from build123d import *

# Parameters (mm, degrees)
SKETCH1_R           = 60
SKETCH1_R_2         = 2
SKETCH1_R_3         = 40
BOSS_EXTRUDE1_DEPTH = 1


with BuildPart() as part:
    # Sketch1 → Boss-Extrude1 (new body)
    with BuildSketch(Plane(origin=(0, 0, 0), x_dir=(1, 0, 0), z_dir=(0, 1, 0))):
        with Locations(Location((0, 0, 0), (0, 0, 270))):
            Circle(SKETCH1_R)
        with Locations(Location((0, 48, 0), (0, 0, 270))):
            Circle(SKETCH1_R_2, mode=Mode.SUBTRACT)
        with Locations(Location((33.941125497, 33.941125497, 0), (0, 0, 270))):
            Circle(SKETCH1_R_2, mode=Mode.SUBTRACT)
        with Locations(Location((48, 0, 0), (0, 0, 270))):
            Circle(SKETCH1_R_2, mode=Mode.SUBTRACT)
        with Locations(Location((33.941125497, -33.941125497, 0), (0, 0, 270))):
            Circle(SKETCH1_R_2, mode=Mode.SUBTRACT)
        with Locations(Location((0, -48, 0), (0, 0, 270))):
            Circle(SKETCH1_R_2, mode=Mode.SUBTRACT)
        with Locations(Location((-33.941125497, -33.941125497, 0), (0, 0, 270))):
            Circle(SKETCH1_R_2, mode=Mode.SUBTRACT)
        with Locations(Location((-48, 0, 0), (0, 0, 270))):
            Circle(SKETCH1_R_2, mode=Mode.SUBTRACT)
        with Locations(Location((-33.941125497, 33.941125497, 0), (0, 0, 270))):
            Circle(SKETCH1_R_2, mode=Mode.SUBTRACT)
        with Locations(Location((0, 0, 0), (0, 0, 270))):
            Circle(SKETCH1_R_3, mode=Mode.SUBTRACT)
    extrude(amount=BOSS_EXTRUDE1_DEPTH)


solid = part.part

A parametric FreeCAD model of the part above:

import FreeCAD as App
import Part
import Sketcher

V = App.Vector
Q = App.Units.Quantity

doc = App.newDocument("Part")
params = doc.addObject("Spreadsheet::Sheet", "Params")
for row, (alias, value) in enumerate([
    ("sketch1_diameter", "120 mm"),
    ("sketch1_diameter2", "4 mm"),
    ("sketch1_diameter3", "80 mm"),
    ("pad1_length", "1 mm"),
], start=1):
    params.set(f"A{row}", alias)
    params.set(f"B{row}", "=" + value)
    params.setAlias(f"B{row}", alias)

body = doc.addObject("PartDesign::Body", "Body")

sketch1 = body.newObject("Sketcher::SketchObject", "Sketch")
sketch1.AttachmentSupport = (doc.getObject("XZ_Plane"), [""])
sketch1.MapMode = "FlatFace"
sketch1.addGeometry(Part.Circle(V(0, 0, 0), V(0, 0, 1), 60), False)
sketch1.addGeometry(Part.Circle(V(-33.9, -33.9, 0), V(0, 0, 1), 2), False)
sketch1.addGeometry(Part.Circle(V(0, -48, 0), V(0, 0, 1), 2), False)
sketch1.addGeometry(Part.Circle(V(-48, 0, 0), V(0, 0, 1), 2), False)
sketch1.addGeometry(Part.Circle(V(-33.9, 33.9, 0), V(0, 0, 1), 2), False)
sketch1.addGeometry(Part.Circle(V(33.9, -33.9, 0), V(0, 0, 1), 2), False)
sketch1.addGeometry(Part.Circle(V(48, 0, 0), V(0, 0, 1), 2), False)
sketch1.addGeometry(Part.Circle(V(0, 0, 0), V(0, 0, 1), 40), False)
sketch1.addGeometry(Part.Circle(V(0, 48, 0), V(0, 0, 1), 2), False)
sketch1.addGeometry(Part.Circle(V(33.9, 33.9, 0), V(0, 0, 1), 2), False)
sketch1.addConstraint(Sketcher.Constraint("Coincident", 0, 3, -1, 1))
sketch1.addConstraint(Sketcher.Constraint("Coincident", 7, 3, -1, 1))
sketch1.addConstraint(Sketcher.Constraint("Equal", 1, 2))
sketch1.addConstraint(Sketcher.Constraint("Equal", 2, 3))
sketch1.addConstraint(Sketcher.Constraint("Equal", 3, 4))
sketch1.addConstraint(Sketcher.Constraint("Equal", 4, 5))
sketch1.addConstraint(Sketcher.Constraint("Equal", 5, 6))
sketch1.addConstraint(Sketcher.Constraint("Equal", 6, 8))
sketch1.addConstraint(Sketcher.Constraint("Equal", 8, 9))
sketch1.addConstraint(Sketcher.Constraint("Symmetric", 4, 3, 5, 3, -1, 1))
sketch1.addConstraint(Sketcher.Constraint("Symmetric", 3, 3, 6, 3, -1, 1))
sketch1.addConstraint(Sketcher.Constraint("Symmetric", 2, 3, 8, 3, -1, 1))
sketch1.addConstraint(Sketcher.Constraint("Symmetric", 1, 3, 9, 3, -1, 1))
sketch1.addConstraint(Sketcher.Constraint("Symmetric", 1, 3, 5, 3, -2))
sketch1.addConstraint(Sketcher.Constraint("PointOnObject", 2, 3, -2))
sketch1.addConstraint(Sketcher.Constraint("PointOnObject", 3, 3, -1))
sketch1.addConstraint(Sketcher.Constraint("Diameter", 0, Q("120 mm")))
sketch1.addConstraint(Sketcher.Constraint("Diameter", 1, Q("4 mm")))
sketch1.addConstraint(Sketcher.Constraint("Diameter", 7, Q("80 mm")))
sketch1.addConstraint(Sketcher.Constraint("DistanceY", 2, 3, -1, 1, Q("48 mm")))
sketch1.addConstraint(Sketcher.Constraint("DistanceX", 3, 3, -1, 1, Q("48 mm")))
sketch1.addConstraint(Sketcher.Constraint("DistanceY", 1, 3, 4, 3, Q("67.882251 mm")))
sketch1.addConstraint(Sketcher.Constraint("DistanceX", 1, 3, 5, 3, Q("67.882251 mm")))
sketch1.setExpression("Constraints[16]", "Params.sketch1_diameter")
sketch1.setExpression("Constraints[17]", "Params.sketch1_diameter2")
sketch1.setExpression("Constraints[18]", "Params.sketch1_diameter3")
pad1 = body.newObject("PartDesign::Pad", "Pad")
pad1.Profile = sketch1
pad1.setExpression("Length", "Params.pad1_length")
pad1.Reversed = True

doc.recompute()
